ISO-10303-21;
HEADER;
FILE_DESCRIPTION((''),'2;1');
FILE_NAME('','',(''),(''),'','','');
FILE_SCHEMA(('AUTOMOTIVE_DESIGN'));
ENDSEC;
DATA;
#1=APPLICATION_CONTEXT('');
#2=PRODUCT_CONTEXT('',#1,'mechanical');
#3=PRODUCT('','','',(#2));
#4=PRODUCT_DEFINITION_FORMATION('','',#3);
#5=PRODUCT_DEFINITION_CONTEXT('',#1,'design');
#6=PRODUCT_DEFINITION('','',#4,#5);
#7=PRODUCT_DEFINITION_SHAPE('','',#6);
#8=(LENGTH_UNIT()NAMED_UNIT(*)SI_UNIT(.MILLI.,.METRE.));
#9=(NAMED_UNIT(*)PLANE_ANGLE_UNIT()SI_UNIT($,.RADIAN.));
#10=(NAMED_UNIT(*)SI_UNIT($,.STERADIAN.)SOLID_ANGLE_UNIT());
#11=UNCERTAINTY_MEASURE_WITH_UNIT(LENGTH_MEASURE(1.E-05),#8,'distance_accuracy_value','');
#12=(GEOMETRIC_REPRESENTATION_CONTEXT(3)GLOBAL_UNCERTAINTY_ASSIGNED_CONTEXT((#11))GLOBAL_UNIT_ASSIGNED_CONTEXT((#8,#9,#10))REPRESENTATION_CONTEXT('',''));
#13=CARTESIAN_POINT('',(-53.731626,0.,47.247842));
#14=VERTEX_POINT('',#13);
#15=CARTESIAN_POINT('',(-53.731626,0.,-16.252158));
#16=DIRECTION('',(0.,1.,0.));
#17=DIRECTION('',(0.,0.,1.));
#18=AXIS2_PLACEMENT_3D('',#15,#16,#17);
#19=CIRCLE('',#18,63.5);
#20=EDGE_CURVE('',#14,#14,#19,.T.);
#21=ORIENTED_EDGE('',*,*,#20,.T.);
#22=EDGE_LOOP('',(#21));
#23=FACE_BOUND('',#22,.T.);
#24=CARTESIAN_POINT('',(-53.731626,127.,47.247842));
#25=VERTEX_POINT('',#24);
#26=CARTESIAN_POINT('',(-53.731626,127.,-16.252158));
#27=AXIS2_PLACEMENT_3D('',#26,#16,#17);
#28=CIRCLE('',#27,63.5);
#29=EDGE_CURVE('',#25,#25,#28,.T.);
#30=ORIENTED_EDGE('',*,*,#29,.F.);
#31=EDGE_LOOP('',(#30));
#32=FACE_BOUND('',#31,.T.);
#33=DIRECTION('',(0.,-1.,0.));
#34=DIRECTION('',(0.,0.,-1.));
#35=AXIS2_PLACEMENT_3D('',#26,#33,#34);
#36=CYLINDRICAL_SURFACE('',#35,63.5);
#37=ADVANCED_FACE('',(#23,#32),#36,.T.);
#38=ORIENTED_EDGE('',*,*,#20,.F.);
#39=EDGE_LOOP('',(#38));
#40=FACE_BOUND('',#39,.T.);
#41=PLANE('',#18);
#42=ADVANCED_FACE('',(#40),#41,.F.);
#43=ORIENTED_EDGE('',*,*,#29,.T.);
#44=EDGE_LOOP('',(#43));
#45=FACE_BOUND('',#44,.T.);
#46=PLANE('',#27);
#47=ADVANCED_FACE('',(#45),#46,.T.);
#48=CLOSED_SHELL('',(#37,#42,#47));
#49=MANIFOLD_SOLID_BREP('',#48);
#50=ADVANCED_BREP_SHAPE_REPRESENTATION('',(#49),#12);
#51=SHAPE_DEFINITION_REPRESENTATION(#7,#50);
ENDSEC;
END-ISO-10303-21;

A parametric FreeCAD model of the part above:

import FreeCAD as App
import Part
import Sketcher
Q = App.Units.Quantity

doc = App.newDocument("Part")
body = doc.addObject("PartDesign::Body", "Body")

# Sketch on XZ plane
sketch1 = body.newObject("Sketcher::SketchObject", "Sketch")
sketch1.AttachmentSupport = (doc.getObject("XZ_Plane"), [""])
sketch1.MapMode = "FlatFace"
sketch1.addGeometry(Part.Circle(App.Vector(-54, -16, 0), App.Vector(0, 0, 1), 64), False)
sketch1.addConstraint([
    Sketcher.Constraint("Diameter", 0, Q("5 in")),
    Sketcher.Constraint("DistanceY", 0, 3, -1, 1, Q("16.252158 mm")),
    Sketcher.Constraint("DistanceX", 0, 3, -1, 1, Q("53.731626 mm")),
])
pad1 = body.newObject("PartDesign::Pad", "Pad")
pad1.Profile = sketch1
pad1.Length = Q("5 in")
pad1.Reversed = True

doc.recompute()
